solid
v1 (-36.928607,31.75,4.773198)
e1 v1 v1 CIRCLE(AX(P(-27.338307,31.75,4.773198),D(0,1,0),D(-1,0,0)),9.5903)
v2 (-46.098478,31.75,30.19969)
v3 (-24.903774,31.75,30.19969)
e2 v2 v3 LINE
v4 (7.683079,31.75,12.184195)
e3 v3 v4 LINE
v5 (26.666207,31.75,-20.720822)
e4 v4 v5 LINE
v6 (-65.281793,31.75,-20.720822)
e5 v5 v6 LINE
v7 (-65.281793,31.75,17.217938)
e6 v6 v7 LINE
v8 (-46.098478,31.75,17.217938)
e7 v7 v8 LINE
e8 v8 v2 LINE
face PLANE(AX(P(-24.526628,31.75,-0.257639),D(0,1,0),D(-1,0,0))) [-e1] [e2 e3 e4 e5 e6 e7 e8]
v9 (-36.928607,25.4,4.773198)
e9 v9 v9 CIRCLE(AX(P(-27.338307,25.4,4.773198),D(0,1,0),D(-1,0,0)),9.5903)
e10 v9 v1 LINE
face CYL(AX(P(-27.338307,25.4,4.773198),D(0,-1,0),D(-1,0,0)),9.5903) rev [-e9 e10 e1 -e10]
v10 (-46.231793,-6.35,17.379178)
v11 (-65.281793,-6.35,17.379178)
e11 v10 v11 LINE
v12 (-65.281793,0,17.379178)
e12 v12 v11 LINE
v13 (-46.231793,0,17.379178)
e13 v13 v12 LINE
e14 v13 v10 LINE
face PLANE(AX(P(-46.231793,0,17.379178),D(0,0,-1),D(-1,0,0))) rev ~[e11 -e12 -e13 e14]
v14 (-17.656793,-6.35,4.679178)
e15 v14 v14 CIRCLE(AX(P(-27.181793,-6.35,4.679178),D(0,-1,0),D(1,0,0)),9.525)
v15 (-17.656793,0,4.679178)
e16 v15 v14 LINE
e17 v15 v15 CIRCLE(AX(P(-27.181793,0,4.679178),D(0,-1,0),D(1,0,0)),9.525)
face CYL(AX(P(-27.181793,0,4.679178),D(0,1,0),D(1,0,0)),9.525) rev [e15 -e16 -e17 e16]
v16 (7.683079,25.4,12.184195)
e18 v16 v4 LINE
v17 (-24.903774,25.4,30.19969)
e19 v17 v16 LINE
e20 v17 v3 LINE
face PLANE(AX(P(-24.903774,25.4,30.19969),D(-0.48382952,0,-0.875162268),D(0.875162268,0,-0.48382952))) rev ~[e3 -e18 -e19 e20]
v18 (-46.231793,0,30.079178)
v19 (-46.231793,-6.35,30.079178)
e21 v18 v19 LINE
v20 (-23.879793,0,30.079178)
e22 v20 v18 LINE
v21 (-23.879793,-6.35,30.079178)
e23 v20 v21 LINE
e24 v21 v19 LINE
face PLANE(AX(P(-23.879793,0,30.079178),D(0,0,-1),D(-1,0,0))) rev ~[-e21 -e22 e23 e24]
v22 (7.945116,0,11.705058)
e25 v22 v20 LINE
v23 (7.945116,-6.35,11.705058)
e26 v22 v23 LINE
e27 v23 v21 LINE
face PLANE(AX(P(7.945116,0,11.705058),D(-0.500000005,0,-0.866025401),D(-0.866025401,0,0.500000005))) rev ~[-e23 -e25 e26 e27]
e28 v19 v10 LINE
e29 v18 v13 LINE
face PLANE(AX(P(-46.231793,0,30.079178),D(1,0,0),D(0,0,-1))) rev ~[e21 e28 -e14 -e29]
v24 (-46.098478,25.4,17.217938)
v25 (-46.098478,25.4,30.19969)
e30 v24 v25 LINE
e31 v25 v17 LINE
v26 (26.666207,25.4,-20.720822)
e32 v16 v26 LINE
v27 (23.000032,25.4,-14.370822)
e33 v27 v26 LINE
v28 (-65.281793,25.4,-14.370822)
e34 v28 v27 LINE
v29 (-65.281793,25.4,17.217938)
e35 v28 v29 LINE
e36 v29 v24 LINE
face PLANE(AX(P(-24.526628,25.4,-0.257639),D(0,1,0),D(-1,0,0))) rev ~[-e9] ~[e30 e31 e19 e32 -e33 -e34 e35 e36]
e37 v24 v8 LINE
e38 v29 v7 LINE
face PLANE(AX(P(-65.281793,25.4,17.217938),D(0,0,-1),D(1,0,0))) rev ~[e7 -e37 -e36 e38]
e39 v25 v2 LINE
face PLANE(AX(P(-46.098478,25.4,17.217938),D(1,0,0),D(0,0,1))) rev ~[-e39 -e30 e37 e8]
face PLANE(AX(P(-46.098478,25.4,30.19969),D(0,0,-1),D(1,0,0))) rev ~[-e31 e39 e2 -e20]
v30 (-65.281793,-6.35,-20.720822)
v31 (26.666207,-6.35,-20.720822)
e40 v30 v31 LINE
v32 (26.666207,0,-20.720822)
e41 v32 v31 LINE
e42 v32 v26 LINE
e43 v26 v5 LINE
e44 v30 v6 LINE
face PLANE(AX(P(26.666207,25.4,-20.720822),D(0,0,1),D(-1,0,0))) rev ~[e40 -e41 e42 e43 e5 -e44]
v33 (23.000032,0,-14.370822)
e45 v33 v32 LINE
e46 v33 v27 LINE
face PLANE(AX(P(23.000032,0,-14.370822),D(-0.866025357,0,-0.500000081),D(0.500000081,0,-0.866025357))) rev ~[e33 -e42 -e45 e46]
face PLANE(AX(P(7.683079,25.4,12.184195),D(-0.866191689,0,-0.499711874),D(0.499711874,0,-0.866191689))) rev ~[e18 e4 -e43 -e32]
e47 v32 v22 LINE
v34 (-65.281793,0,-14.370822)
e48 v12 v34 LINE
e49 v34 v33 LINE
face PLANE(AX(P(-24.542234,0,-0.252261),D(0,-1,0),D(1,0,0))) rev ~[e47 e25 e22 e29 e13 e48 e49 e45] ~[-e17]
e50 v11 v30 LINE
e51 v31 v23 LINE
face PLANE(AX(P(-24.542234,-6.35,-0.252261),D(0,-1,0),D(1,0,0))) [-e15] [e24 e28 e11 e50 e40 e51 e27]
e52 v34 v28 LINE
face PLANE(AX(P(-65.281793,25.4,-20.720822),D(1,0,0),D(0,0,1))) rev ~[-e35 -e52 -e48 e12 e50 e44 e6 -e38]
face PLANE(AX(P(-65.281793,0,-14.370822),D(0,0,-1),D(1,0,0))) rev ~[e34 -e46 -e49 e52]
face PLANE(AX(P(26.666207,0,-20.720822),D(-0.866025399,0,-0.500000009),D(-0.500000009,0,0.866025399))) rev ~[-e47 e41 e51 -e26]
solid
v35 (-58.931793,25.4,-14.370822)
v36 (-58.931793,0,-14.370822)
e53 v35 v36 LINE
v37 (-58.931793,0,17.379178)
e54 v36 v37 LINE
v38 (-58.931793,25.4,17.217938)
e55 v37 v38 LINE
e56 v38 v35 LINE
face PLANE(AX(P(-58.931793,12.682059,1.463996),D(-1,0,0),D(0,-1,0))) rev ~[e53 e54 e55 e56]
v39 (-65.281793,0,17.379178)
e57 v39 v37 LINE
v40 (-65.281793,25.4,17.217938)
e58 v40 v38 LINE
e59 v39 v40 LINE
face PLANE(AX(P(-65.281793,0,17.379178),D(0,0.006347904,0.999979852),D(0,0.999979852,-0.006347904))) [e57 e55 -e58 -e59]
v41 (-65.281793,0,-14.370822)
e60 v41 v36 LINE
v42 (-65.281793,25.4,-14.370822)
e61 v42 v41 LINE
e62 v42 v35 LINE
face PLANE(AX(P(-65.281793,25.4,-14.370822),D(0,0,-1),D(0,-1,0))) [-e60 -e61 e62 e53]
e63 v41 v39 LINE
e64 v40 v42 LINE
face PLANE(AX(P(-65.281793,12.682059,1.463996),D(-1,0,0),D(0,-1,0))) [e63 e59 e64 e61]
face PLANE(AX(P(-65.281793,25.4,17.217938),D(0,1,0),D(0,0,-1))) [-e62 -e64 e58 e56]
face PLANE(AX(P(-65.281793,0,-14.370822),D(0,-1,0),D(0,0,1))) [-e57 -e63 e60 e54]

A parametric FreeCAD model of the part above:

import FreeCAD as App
import Part
import Sketcher
Q = App.Units.Quantity

doc = App.newDocument("Part")
params = doc.addObject("Spreadsheet::Sheet", "Params")
for row, (alias, value) in enumerate([
    ("sketch1_diameter", "0.75 in"),
    ("sketch1_height", "1.5 in"),
    ("sketch1_height2", "0.5 in"),
    ("sketch1_width", "3.62 in"),
    ("sketch1_width2", "0.88 in"),
    ("pad1_length", "0.25 in"),
    ("sketch2_width", "3.62 in"),
    ("sketch2_height", "0.25 in"),
    ("pad2_length", "1 in"),
    ("sketch3_width", "3.62 in"),
    ("pad3_length", "0.25 in"),
    ("sketch4_width", "1 in"),
    ("sketch4_height", "1.25 in"),
    ("pad4_length", "0.25 in"),
], start=1):
    params.set(f"A{row}", alias)
    params.set(f"B{row}", "=" + value)
    params.setAlias(f"B{row}", alias)

body = doc.addObject("PartDesign::Body", "Body")

sketch1 = doc.addObject("Sketcher::SketchObject", "Sketch")
body.addObject(sketch1)
sketch1.AttachmentSupport = (doc.XZ_Plane, [""])
sketch1.MapMode = "FlatFace"
sketch1.addGeometry([
    Part.LineSegment(App.Vector(-65, 17, 0), App.Vector(-65, -21, 0)),
    Part.LineSegment(App.Vector(-65, -21, 0), App.Vector(27, -21, 0)),
    Part.LineSegment(App.Vector(27, -21, 0), App.Vector(8, 12, 0)),
    Part.LineSegment(App.Vector(8, 12, 0), App.Vector(-24, 30, 0)),
    Part.LineSegment(App.Vector(-24, 30, 0), App.Vector(-46, 30, 0)),
    Part.LineSegment(App.Vector(-46, 30, 0), App.Vector(-46, 17, 0)),
    Part.LineSegment(App.Vector(-46, 17, 0), App.Vector(-65, 17, 0)),
    Part.Circle(App.Vector(-27, 5, 0), App.Vector(0, 0, 1), 10),
], False)
sketch1.addConstraint([
    Sketcher.Constraint("Coincident", 0, 2, 1, 1),
    Sketcher.Constraint("Coincident", 1, 2, 2, 1),
    Sketcher.Constraint("Coincident", 2, 2, 3, 1),
    Sketcher.Constraint("Coincident", 3, 2, 4, 1),
    Sketcher.Constraint("Coincident", 4, 2, 5, 1),
    Sketcher.Constraint("Coincident", 5, 2, 6, 1),
    Sketcher.Constraint("Coincident", 6, 2, 0, 1),
    Sketcher.Constraint("Vertical", 0),
    Sketcher.Constraint("Horizontal", 1),
    Sketcher.Constraint("Horizontal", 4),
    Sketcher.Constraint("Vertical", 5),
    Sketcher.Constraint("Horizontal", 6),
    Sketcher.Constraint("Diameter", 7, Q("0.75 in")),
    Sketcher.Constraint("DistanceY", 0, 2, 0, 1, Q("1.5 in")),
    Sketcher.Constraint("DistanceY", 5, 2, 5, 1, Q("0.5 in")),
    Sketcher.Constraint("Angle", 2, Q("120.000001 deg")),
    Sketcher.Constraint("Angle", 3, Q("150 deg")),
    Sketcher.Constraint("DistanceY", 0, 2, 7, 3, Q("1 in")),
    Sketcher.Constraint("DistanceX", 1, 1, 1, 2, Q("3.62 in")),
    Sketcher.Constraint("DistanceX", 4, 2, 4, 1, Q("0.88 in")),
    Sketcher.Constraint("DistanceX", 6, 2, 6, 1, Q("0.75 in")),
    Sketcher.Constraint("DistanceX", 0, 2, 7, 3, Q("1.5 in")),
    Sketcher.Constraint("DistanceX", -1, 1, 2, 2, Q("0.3127998 in")),
    Sketcher.Constraint("DistanceY", -1, 1, 7, 3, 4.679178),
])
sketch1.setExpression("Constraints[12]", "Params.sketch1_diameter")
sketch1.setExpression("Constraints[13]", "Params.sketch1_height")
sketch1.setExpression("Constraints[14]", "Params.sketch1_height2")
sketch1.setExpression("Constraints[18]", "Params.sketch1_width")
sketch1.setExpression("Constraints[19]", "Params.sketch1_width2")
pad1 = doc.addObject("PartDesign::Pad", "Pad")
body.addObject(pad1)
pad1.Profile = sketch1
pad1.setExpression("Length", "Params.pad1_length")

sketch2 = doc.addObject("Sketcher::SketchObject", "Sketch001")
body.addObject(sketch2)
sketch2.AttachmentSupport = (doc.XZ_Plane, [""])
sketch2.MapMode = "FlatFace"
sketch2.addGeometry([
    Part.LineSegment(App.Vector(23, -14, 0), App.Vector(27, -21, 0)),
    Part.LineSegment(App.Vector(27, -21, 0), App.Vector(-65, -21, 0)),
    Part.LineSegment(App.Vector(-65, -21, 0), App.Vector(-65, -14, 0)),
    Part.LineSegment(App.Vector(-65, -14, 0), App.Vector(23, -14, 0)),
], False)
sketch2.addConstraint([
    Sketcher.Constraint("Coincident", 0, 2, 1, 1),
    Sketcher.Constraint("Coincident", 1, 2, 2, 1),
    Sketcher.Constraint("Coincident", 2, 2, 3, 1),
    Sketcher.Constraint("Coincident", 3, 2, 0, 1),
    Sketcher.Constraint("Horizontal", 1),
    Sketcher.Constraint("Vertical", 2),
    Sketcher.Constraint("Horizontal", 3),
    Sketcher.Constraint("Angle", 0, Q("-59.999995 deg")),
    Sketcher.Constraint("DistanceX", 1, 2, 1, 1, Q("3.62 in")),
    Sketcher.Constraint("DistanceY", 2, 1, 2, 2, Q("0.25 in")),
    Sketcher.Constraint("DistanceY", 0, 2, -1, 1, 20.720822),
    Sketcher.Constraint("DistanceX", -1, 1, 0, 2, 26.666207),
])
sketch2.setExpression("Constraints[8]", "Params.sketch2_width")
sketch2.setExpression("Constraints[9]", "Params.sketch2_height")
pad2 = doc.addObject("PartDesign::Pad", "Pad001")
body.addObject(pad2)
pad2.Profile = sketch2
pad2.setExpression("Length", "Params.pad2_length")
pad2.Reversed = True

sketch3 = doc.addObject("Sketcher::SketchObject", "Sketch002")
body.addObject(sketch3)
sketch3.AttachmentSupport = (doc.XZ_Plane, [""])
sketch3.MapMode = "FlatFace"
sketch3.AttachmentOffset = App.Placement(App.Vector(0, 0, -1 * 25.4), App.Rotation())
sketch3.addGeometry([
    Part.LineSegment(App.Vector(8, 12, 0), App.Vector(27, -21, 0)),
    Part.LineSegment(App.Vector(27, -21, 0), App.Vector(-65, -21, 0)),
    Part.LineSegment(App.Vector(-65, -21, 0), App.Vector(-65, 17, 0)),
    Part.LineSegment(App.Vector(-65, 17, 0), App.Vector(-46, 17, 0)),
    Part.LineSegment(App.Vector(-46, 17, 0), App.Vector(-46, 30, 0)),
    Part.LineSegment(App.Vector(-46, 30, 0), App.Vector(-25, 30, 0)),
    Part.LineSegment(App.Vector(-25, 30, 0), App.Vector(8, 12, 0)),
    Part.Circle(App.Vector(-27, 5, 0), App.Vector(0, 0, 1), 10),
], False)
sketch3.addConstraint([
    Sketcher.Constraint("Coincident", 0, 2, 1, 1),
    Sketcher.Constraint("Coincident", 1, 2, 2, 1),
    Sketcher.Constraint("Coincident", 2, 2, 3, 1),
    Sketcher.Constraint("Coincident", 3, 2, 4, 1),
    Sketcher.Constraint("Coincident", 4, 2, 5, 1),
    Sketcher.Constraint("Coincident", 5, 2, 6, 1),
    Sketcher.Constraint("Coincident", 6, 2, 0, 1),
    Sketcher.Constraint("Horizontal", 1),
    Sketcher.Constraint("Vertical", 2),
    Sketcher.Constraint("Horizontal", 3),
    Sketcher.Constraint("Vertical", 4),
    Sketcher.Constraint("Horizontal", 5),
    Sketcher.Constraint("DistanceX", 1, 2, 1, 1, Q("3.62 in")),
    Sketcher.Constraint("Diameter", 7, 19.1806),
    Sketcher.Constraint("DistanceY", 2, 1, 2, 2, 37.93876),
    Sketcher.Constraint("DistanceX", 3, 1, 3, 2, 19.183315),
    Sketcher.Constraint("DistanceX", 5, 1, 5, 2, 21.194704),
    Sketcher.Constraint("DistanceY", 4, 1, 4, 2, 12.981752),
    Sketcher.Constraint("DistanceY", 0, 2, -1, 1, 20.720822),
    Sketcher.Constraint("DistanceX", -1, 1, 6, 2, 7.683079),
    Sketcher.Constraint("DistanceY", 0, 2, 7, 3, 25.49402),
    Sketcher.Constraint("DistanceX", 3, 2, 7, 3, 18.760171),
    Sketcher.Constraint("DistanceX", 6, 2, 0, 2, 18.983128),
    Sketcher.Constraint("Distance", 0, 37.988147),
])
sketch3.setExpression("Constraints[12]", "Params.sketch3_width")
pad3 = doc.addObject("PartDesign::Pad", "Pad002")
body.addObject(pad3)
pad3.Profile = sketch3
pad3.setExpression("Length", "Params.pad3_length")
pad3.Reversed = True
body2 = doc.addObject("PartDesign::Body", "Body001")

sketch4 = doc.addObject("Sketcher::SketchObject", "Sketch003")
body2.addObject(sketch4)
sketch4.AttachmentSupport = (doc.getObject("YZ_Plane001"), [""])
sketch4.MapMode = "FlatFace"
sketch4.AttachmentOffset = App.Placement(App.Vector(0, 0, -65.281793), App.Rotation())
sketch4.addGeometry([
    Part.LineSegment(App.Vector(0, 17, 0), App.Vector(25, 17, 0)),
    Part.LineSegment(App.Vector(25, 17, 0), App.Vector(25, -14, 0)),
    Part.LineSegment(App.Vector(25, -14, 0), App.Vector(0, -14, 0)),
    Part.LineSegment(App.Vector(0, -14, 0), App.Vector(0, 17, 0)),
], False)
sketch4.addConstraint([
    Sketcher.Constraint("Coincident", 0, 2, 1, 1),
    Sketcher.Constraint("Coincident", 1, 2, 2, 1),
    Sketcher.Constraint("Coincident", 2, 2, 3, 1),
    Sketcher.Constraint("Coincident", 3, 2, 0, 1),
    Sketcher.Constraint("Vertical", 1),
    Sketcher.Constraint("Horizontal", 2),
    Sketcher.Constraint("Vertical", 3),
    Sketcher.Constraint("PointOnObject", 2, 2, -2),
    Sketcher.Constraint("DistanceX", 2, 2, 2, 1, Q("1 in")),
    Sketcher.Constraint("DistanceY", 3, 1, 3, 2, Q("1.25 in")),
    Sketcher.Constraint("DistanceY", 1, 2, 1, 1, 31.58876),
    Sketcher.Constraint("DistanceY", -1, 1, 0, 2, 17.217938),
])
sketch4.setExpression("Constraints[8]", "Params.sketch4_width")
sketch4.setExpression("Constraints[9]", "Params.sketch4_height")
pad4 = doc.addObject("PartDesign::Pad", "Pad003")
body2.addObject(pad4)
pad4.Profile = sketch4
pad4.setExpression("Length", "Params.pad4_length")

doc.recompute()
